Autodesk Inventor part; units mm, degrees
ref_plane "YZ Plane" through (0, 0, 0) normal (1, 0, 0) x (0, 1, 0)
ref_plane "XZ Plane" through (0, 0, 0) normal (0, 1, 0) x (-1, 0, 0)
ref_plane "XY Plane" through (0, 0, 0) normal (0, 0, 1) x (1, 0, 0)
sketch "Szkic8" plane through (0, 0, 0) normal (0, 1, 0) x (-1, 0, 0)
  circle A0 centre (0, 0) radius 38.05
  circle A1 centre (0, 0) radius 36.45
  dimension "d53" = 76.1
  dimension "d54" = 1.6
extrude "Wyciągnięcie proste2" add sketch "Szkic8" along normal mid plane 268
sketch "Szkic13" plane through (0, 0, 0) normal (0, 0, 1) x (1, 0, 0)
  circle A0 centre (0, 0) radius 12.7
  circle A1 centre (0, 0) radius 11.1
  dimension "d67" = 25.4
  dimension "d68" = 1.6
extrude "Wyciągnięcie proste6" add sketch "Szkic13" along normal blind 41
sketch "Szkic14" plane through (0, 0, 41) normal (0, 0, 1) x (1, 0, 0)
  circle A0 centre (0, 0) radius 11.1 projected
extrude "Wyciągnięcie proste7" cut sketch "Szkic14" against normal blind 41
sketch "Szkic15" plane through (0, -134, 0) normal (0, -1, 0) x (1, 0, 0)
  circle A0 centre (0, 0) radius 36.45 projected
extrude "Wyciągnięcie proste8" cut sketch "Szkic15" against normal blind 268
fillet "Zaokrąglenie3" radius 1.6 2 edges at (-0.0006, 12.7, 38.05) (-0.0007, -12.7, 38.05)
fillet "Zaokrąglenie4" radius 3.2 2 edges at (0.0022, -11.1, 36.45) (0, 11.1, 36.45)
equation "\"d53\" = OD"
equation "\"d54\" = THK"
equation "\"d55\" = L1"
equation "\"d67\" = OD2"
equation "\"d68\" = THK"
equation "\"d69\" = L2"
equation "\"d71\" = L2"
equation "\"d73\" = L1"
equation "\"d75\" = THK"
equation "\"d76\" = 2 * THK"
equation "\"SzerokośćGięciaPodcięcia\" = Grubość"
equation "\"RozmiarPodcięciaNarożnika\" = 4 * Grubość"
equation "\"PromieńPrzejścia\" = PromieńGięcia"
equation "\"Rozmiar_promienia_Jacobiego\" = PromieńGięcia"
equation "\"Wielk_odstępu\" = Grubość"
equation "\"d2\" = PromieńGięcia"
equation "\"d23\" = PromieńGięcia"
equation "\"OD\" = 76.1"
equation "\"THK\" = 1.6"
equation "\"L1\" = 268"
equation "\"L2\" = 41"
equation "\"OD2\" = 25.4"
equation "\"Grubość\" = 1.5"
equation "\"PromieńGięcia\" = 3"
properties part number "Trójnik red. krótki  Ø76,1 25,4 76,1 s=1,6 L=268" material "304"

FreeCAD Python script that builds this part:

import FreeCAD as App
import Part
import Sketcher
from FreeCAD import Vector
Q = App.Units.Quantity


def edges_at(feature, points):
    """Names of the edges that pass closest to the given points."""
    edges = feature.Shape.Edges
    near = lambda p: min(range(len(edges)), key=lambda i: edges[i].distToShape(Part.Vertex(*p))[0])
    return sorted({f"Edge{near(p) + 1}" for p in points})

doc = App.newDocument("Part")
body = doc.addObject("PartDesign::Body", "Body")

sketch1 = body.newObject("Sketcher::SketchObject", "Sketch")
sketch1.AttachmentSupport = (doc.getObject("XZ_Plane"), [""])
sketch1.MapMode = "FlatFace"
sketch1.addGeometry([
    Part.Circle(Vector(0, 0, 0), Vector(0, 0, 1), 38),
    Part.Circle(Vector(0, 0, 0), Vector(0, 0, 1), 36),
], False)
sketch1.addConstraint([
    Sketcher.Constraint("Coincident", 0, 3, -1, 1),
    Sketcher.Constraint("Coincident", 1, 3, -1, 1),
    Sketcher.Constraint("Diameter", 0, Q("76.1 mm")),
    Sketcher.Constraint("Diameter", 1, Q("72.9 mm")),
])
pad1 = body.newObject("PartDesign::Pad", "Pad")
pad1.Profile = sketch1
pad1.Length = 268
pad1.Midplane = True

sketch2 = body.newObject("Sketcher::SketchObject", "Sketch001")
sketch2.AttachmentSupport = (doc.getObject("XY_Plane"), [""])
sketch2.MapMode = "FlatFace"
sketch2.addGeometry([
    Part.Circle(Vector(0, 0, 0), Vector(0, 0, 1), 13),
    Part.Circle(Vector(0, 0, 0), Vector(0, 0, 1), 11),
], False)
sketch2.addConstraint([
    Sketcher.Constraint("Coincident", 0, 3, -1, 1),
    Sketcher.Constraint("Coincident", 1, 3, -1, 1),
    Sketcher.Constraint("Diameter", 0, Q("25.4 mm")),
    Sketcher.Constraint("Diameter", 1, Q("22.2 mm")),
])
pad2 = body.newObject("PartDesign::Pad", "Pad001")
pad2.Profile = sketch2
pad2.Length = 41

sketch3 = body.newObject("Sketcher::SketchObject", "Sketch002")
sketch3.AttachmentSupport = (doc.getObject("XY_Plane"), [""])
sketch3.MapMode = "FlatFace"
sketch3.AttachmentOffset = App.Placement(Vector(0, 0, 41), App.Rotation())
sketch3.addGeometry(Part.Circle(Vector(0, 0, 0), Vector(0, 0, 1), 11), False)
sketch3.addConstraint([
    Sketcher.Constraint("Coincident", 0, 3, -1, 1),
    Sketcher.Constraint("Diameter", 0, Q("22.2 mm")),
])
pocket1 = body.newObject("PartDesign::Pocket", "Pocket")
pocket1.Profile = sketch3
pocket1.Length = 41

sketch4 = body.newObject("Sketcher::SketchObject", "Sketch003")
sketch4.AttachmentSupport = (doc.getObject("XZ_Plane"), [""])
sketch4.MapMode = "FlatFace"
sketch4.AttachmentOffset = App.Placement(Vector(0, 0, 134), App.Rotation())
sketch4.addGeometry(Part.Circle(Vector(0, 0, 0), Vector(0, 0, 1), 36), False)
sketch4.addConstraint([
    Sketcher.Constraint("Coincident", 0, 3, -1, 1),
    Sketcher.Constraint("Diameter", 0, Q("72.9 mm")),
])
pocket2 = body.newObject("PartDesign::Pocket", "Pocket001")
pocket2.Profile = sketch4
pocket2.Length = 268
doc.recompute()

fillet = body.newObject("PartDesign::Fillet", "Fillet")
fillet.Base = (pocket2, edges_at(pocket2, [(-0.001, 12.7, 38.05), (-0.001, -12.7, 38.05)]))
fillet.Radius = 1.6
doc.recompute()

fillet2 = body.newObject("PartDesign::Fillet", "Fillet001")
fillet2.Base = (fillet, edges_at(fillet, [(0.002, -11.1, 36.45), (0, 11.1, 36.45)]))
fillet2.Radius = 3.2

doc.recompute()
